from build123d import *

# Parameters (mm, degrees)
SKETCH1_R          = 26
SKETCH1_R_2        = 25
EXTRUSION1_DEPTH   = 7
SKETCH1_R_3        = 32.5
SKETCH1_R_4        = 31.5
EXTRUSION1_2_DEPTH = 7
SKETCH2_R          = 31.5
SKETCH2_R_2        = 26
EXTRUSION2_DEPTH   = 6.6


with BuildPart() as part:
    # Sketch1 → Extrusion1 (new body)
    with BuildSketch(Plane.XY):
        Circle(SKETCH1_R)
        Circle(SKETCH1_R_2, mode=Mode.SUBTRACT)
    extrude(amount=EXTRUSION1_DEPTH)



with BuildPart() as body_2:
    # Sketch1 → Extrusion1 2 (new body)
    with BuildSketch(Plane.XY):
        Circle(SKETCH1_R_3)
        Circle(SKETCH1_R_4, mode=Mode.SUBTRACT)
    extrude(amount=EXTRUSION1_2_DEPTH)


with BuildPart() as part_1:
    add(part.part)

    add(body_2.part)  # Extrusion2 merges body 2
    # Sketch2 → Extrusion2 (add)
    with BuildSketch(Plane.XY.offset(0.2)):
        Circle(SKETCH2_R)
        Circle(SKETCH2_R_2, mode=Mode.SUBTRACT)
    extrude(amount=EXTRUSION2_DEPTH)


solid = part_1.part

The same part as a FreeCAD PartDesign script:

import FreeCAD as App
import Part
import Sketcher
from FreeCAD import Vector
Q = App.Units.Quantity

doc = App.newDocument("Part")
body = doc.addObject("PartDesign::Body", "Body")

sketch1 = doc.addObject("Sketcher::SketchObject", "Sketch")
body.addObject(sketch1)
sketch1.AttachmentSupport = (doc.XY_Plane, [""])
sketch1.MapMode = "FlatFace"
sketch1.addGeometry(Part.Circle(Vector(0, 0, 0), Vector(0, 0, 1), 26), False)
sketch1.addGeometry(Part.Circle(Vector(0, 0, 0), Vector(0, 0, 1), 25), False)
sketch1.addConstraint(Sketcher.Constraint("Coincident", 0, 3, -1, 1))
sketch1.addConstraint(Sketcher.Constraint("Coincident", 1, 3, -1, 1))
sketch1.addConstraint(Sketcher.Constraint("Diameter", 0, Q("52 mm")))
sketch1.addConstraint(Sketcher.Constraint("Diameter", 1, Q("50 mm")))
pad1 = doc.addObject("PartDesign::Pad", "Pad")
body.addObject(pad1)
pad1.Profile = sketch1
pad1.Length = 7
body2 = doc.addObject("PartDesign::Body", "Body001")

sketch2 = doc.addObject("Sketcher::SketchObject", "Sketch001")
body2.addObject(sketch2)
sketch2.AttachmentSupport = (doc.getObject("XY_Plane001"), [""])
sketch2.MapMode = "FlatFace"
sketch2.addGeometry(Part.Circle(Vector(0, 0, 0), Vector(0, 0, 1), 32), False)
sketch2.addGeometry(Part.Circle(Vector(0, 0, 0), Vector(0, 0, 1), 32), False)
sketch2.addConstraint(Sketcher.Constraint("Coincident", 0, 3, -1, 1))
sketch2.addConstraint(Sketcher.Constraint("Coincident", 1, 3, -1, 1))
sketch2.addConstraint(Sketcher.Constraint("Diameter", 0, Q("65 mm")))
sketch2.addConstraint(Sketcher.Constraint("Diameter", 1, Q("63 mm")))
pad2 = doc.addObject("PartDesign::Pad", "Pad001")
body2.addObject(pad2)
pad2.Profile = sketch2
pad2.Length = 7
body.AllowCompound = True
doc.recompute()

boolean = doc.addObject("PartDesign::Boolean", "Boolean")
body.addObject(boolean)
boolean.Type = "Fuse"
boolean.addObjects([body2])

sketch3 = doc.addObject("Sketcher::SketchObject", "Sketch002")
body.addObject(sketch3)
sketch3.AttachmentSupport = (doc.XY_Plane, [""])
sketch3.MapMode = "FlatFace"
sketch3.AttachmentOffset = App.Placement(Vector(0, 0, 0.2), App.Rotation())
sketch3.addGeometry(Part.Circle(Vector(0, 0, 0), Vector(0, 0, 1), 32), False)
sketch3.addGeometry(Part.Circle(Vector(0, 0, 0), Vector(0, 0, 1), 26), False)
sketch3.addConstraint(Sketcher.Constraint("Coincident", 0, 3, -1, 1))
sketch3.addConstraint(Sketcher.Constraint("Coincident", 1, 3, -1, 1))
sketch3.addConstraint(Sketcher.Constraint("Diameter", 0, Q("63 mm")))
sketch3.addConstraint(Sketcher.Constraint("Diameter", 1, Q("52 mm")))
pad3 = doc.addObject("PartDesign::Pad", "Pad002")
body.addObject(pad3)
pad3.Profile = sketch3
pad3.Length = 6.6

doc.recompute()
